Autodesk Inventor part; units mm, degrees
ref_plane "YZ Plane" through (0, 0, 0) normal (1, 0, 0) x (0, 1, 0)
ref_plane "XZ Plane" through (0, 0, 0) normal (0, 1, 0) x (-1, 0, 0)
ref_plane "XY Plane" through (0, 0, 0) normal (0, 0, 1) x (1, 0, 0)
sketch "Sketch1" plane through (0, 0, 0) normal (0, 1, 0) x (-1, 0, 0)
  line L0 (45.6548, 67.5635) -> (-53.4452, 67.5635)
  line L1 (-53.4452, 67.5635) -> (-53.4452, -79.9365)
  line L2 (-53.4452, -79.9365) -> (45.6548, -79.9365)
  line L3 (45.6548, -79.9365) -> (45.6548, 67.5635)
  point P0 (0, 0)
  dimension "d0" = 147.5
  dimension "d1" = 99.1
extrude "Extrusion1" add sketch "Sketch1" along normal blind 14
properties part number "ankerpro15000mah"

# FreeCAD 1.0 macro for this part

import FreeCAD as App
import Part
import Sketcher

V = App.Vector

doc = App.newDocument("Part")
body = doc.addObject("PartDesign::Body", "Body")

sketch1 = doc.addObject("Sketcher::SketchObject", "Sketch")
body.addObject(sketch1)
sketch1.AttachmentSupport = (doc.XZ_Plane, [""])
sketch1.MapMode = "FlatFace"
sketch1.addGeometry(Part.LineSegment(V(-46, -80, 0), V(-46, 68, 0)), False)
sketch1.addGeometry(Part.LineSegment(V(-46, 68, 0), V(53, 68, 0)), False)
sketch1.addGeometry(Part.LineSegment(V(53, 68, 0), V(53, -80, 0)), False)
sketch1.addGeometry(Part.LineSegment(V(53, -80, 0), V(-46, -80, 0)), False)
sketch1.addConstraint(Sketcher.Constraint("Coincident", 0, 2, 1, 1))
sketch1.addConstraint(Sketcher.Constraint("Coincident", 1, 2, 2, 1))
sketch1.addConstraint(Sketcher.Constraint("Coincident", 2, 2, 3, 1))
sketch1.addConstraint(Sketcher.Constraint("Coincident", 3, 2, 0, 1))
sketch1.addConstraint(Sketcher.Constraint("Vertical", 0))
sketch1.addConstraint(Sketcher.Constraint("Horizontal", 1))
sketch1.addConstraint(Sketcher.Constraint("Vertical", 2))
sketch1.addConstraint(Sketcher.Constraint("Horizontal", 3))
sketch1.addConstraint(Sketcher.Constraint("DistanceX", 1, 1, 1, 2, 99.1))
sketch1.addConstraint(Sketcher.Constraint("DistanceY", 0, 1, 0, 2, 147.5))
sketch1.addConstraint(Sketcher.Constraint("DistanceX", 0, 2, -1, 1, 45.6548))
sketch1.addConstraint(Sketcher.Constraint("DistanceY", -1, 1, 0, 2, 67.5635))
pad1 = doc.addObject("PartDesign::Pad", "Pad")
body.addObject(pad1)
pad1.Profile = sketch1
pad1.Length = 14
pad1.Reversed = True

doc.recompute()
